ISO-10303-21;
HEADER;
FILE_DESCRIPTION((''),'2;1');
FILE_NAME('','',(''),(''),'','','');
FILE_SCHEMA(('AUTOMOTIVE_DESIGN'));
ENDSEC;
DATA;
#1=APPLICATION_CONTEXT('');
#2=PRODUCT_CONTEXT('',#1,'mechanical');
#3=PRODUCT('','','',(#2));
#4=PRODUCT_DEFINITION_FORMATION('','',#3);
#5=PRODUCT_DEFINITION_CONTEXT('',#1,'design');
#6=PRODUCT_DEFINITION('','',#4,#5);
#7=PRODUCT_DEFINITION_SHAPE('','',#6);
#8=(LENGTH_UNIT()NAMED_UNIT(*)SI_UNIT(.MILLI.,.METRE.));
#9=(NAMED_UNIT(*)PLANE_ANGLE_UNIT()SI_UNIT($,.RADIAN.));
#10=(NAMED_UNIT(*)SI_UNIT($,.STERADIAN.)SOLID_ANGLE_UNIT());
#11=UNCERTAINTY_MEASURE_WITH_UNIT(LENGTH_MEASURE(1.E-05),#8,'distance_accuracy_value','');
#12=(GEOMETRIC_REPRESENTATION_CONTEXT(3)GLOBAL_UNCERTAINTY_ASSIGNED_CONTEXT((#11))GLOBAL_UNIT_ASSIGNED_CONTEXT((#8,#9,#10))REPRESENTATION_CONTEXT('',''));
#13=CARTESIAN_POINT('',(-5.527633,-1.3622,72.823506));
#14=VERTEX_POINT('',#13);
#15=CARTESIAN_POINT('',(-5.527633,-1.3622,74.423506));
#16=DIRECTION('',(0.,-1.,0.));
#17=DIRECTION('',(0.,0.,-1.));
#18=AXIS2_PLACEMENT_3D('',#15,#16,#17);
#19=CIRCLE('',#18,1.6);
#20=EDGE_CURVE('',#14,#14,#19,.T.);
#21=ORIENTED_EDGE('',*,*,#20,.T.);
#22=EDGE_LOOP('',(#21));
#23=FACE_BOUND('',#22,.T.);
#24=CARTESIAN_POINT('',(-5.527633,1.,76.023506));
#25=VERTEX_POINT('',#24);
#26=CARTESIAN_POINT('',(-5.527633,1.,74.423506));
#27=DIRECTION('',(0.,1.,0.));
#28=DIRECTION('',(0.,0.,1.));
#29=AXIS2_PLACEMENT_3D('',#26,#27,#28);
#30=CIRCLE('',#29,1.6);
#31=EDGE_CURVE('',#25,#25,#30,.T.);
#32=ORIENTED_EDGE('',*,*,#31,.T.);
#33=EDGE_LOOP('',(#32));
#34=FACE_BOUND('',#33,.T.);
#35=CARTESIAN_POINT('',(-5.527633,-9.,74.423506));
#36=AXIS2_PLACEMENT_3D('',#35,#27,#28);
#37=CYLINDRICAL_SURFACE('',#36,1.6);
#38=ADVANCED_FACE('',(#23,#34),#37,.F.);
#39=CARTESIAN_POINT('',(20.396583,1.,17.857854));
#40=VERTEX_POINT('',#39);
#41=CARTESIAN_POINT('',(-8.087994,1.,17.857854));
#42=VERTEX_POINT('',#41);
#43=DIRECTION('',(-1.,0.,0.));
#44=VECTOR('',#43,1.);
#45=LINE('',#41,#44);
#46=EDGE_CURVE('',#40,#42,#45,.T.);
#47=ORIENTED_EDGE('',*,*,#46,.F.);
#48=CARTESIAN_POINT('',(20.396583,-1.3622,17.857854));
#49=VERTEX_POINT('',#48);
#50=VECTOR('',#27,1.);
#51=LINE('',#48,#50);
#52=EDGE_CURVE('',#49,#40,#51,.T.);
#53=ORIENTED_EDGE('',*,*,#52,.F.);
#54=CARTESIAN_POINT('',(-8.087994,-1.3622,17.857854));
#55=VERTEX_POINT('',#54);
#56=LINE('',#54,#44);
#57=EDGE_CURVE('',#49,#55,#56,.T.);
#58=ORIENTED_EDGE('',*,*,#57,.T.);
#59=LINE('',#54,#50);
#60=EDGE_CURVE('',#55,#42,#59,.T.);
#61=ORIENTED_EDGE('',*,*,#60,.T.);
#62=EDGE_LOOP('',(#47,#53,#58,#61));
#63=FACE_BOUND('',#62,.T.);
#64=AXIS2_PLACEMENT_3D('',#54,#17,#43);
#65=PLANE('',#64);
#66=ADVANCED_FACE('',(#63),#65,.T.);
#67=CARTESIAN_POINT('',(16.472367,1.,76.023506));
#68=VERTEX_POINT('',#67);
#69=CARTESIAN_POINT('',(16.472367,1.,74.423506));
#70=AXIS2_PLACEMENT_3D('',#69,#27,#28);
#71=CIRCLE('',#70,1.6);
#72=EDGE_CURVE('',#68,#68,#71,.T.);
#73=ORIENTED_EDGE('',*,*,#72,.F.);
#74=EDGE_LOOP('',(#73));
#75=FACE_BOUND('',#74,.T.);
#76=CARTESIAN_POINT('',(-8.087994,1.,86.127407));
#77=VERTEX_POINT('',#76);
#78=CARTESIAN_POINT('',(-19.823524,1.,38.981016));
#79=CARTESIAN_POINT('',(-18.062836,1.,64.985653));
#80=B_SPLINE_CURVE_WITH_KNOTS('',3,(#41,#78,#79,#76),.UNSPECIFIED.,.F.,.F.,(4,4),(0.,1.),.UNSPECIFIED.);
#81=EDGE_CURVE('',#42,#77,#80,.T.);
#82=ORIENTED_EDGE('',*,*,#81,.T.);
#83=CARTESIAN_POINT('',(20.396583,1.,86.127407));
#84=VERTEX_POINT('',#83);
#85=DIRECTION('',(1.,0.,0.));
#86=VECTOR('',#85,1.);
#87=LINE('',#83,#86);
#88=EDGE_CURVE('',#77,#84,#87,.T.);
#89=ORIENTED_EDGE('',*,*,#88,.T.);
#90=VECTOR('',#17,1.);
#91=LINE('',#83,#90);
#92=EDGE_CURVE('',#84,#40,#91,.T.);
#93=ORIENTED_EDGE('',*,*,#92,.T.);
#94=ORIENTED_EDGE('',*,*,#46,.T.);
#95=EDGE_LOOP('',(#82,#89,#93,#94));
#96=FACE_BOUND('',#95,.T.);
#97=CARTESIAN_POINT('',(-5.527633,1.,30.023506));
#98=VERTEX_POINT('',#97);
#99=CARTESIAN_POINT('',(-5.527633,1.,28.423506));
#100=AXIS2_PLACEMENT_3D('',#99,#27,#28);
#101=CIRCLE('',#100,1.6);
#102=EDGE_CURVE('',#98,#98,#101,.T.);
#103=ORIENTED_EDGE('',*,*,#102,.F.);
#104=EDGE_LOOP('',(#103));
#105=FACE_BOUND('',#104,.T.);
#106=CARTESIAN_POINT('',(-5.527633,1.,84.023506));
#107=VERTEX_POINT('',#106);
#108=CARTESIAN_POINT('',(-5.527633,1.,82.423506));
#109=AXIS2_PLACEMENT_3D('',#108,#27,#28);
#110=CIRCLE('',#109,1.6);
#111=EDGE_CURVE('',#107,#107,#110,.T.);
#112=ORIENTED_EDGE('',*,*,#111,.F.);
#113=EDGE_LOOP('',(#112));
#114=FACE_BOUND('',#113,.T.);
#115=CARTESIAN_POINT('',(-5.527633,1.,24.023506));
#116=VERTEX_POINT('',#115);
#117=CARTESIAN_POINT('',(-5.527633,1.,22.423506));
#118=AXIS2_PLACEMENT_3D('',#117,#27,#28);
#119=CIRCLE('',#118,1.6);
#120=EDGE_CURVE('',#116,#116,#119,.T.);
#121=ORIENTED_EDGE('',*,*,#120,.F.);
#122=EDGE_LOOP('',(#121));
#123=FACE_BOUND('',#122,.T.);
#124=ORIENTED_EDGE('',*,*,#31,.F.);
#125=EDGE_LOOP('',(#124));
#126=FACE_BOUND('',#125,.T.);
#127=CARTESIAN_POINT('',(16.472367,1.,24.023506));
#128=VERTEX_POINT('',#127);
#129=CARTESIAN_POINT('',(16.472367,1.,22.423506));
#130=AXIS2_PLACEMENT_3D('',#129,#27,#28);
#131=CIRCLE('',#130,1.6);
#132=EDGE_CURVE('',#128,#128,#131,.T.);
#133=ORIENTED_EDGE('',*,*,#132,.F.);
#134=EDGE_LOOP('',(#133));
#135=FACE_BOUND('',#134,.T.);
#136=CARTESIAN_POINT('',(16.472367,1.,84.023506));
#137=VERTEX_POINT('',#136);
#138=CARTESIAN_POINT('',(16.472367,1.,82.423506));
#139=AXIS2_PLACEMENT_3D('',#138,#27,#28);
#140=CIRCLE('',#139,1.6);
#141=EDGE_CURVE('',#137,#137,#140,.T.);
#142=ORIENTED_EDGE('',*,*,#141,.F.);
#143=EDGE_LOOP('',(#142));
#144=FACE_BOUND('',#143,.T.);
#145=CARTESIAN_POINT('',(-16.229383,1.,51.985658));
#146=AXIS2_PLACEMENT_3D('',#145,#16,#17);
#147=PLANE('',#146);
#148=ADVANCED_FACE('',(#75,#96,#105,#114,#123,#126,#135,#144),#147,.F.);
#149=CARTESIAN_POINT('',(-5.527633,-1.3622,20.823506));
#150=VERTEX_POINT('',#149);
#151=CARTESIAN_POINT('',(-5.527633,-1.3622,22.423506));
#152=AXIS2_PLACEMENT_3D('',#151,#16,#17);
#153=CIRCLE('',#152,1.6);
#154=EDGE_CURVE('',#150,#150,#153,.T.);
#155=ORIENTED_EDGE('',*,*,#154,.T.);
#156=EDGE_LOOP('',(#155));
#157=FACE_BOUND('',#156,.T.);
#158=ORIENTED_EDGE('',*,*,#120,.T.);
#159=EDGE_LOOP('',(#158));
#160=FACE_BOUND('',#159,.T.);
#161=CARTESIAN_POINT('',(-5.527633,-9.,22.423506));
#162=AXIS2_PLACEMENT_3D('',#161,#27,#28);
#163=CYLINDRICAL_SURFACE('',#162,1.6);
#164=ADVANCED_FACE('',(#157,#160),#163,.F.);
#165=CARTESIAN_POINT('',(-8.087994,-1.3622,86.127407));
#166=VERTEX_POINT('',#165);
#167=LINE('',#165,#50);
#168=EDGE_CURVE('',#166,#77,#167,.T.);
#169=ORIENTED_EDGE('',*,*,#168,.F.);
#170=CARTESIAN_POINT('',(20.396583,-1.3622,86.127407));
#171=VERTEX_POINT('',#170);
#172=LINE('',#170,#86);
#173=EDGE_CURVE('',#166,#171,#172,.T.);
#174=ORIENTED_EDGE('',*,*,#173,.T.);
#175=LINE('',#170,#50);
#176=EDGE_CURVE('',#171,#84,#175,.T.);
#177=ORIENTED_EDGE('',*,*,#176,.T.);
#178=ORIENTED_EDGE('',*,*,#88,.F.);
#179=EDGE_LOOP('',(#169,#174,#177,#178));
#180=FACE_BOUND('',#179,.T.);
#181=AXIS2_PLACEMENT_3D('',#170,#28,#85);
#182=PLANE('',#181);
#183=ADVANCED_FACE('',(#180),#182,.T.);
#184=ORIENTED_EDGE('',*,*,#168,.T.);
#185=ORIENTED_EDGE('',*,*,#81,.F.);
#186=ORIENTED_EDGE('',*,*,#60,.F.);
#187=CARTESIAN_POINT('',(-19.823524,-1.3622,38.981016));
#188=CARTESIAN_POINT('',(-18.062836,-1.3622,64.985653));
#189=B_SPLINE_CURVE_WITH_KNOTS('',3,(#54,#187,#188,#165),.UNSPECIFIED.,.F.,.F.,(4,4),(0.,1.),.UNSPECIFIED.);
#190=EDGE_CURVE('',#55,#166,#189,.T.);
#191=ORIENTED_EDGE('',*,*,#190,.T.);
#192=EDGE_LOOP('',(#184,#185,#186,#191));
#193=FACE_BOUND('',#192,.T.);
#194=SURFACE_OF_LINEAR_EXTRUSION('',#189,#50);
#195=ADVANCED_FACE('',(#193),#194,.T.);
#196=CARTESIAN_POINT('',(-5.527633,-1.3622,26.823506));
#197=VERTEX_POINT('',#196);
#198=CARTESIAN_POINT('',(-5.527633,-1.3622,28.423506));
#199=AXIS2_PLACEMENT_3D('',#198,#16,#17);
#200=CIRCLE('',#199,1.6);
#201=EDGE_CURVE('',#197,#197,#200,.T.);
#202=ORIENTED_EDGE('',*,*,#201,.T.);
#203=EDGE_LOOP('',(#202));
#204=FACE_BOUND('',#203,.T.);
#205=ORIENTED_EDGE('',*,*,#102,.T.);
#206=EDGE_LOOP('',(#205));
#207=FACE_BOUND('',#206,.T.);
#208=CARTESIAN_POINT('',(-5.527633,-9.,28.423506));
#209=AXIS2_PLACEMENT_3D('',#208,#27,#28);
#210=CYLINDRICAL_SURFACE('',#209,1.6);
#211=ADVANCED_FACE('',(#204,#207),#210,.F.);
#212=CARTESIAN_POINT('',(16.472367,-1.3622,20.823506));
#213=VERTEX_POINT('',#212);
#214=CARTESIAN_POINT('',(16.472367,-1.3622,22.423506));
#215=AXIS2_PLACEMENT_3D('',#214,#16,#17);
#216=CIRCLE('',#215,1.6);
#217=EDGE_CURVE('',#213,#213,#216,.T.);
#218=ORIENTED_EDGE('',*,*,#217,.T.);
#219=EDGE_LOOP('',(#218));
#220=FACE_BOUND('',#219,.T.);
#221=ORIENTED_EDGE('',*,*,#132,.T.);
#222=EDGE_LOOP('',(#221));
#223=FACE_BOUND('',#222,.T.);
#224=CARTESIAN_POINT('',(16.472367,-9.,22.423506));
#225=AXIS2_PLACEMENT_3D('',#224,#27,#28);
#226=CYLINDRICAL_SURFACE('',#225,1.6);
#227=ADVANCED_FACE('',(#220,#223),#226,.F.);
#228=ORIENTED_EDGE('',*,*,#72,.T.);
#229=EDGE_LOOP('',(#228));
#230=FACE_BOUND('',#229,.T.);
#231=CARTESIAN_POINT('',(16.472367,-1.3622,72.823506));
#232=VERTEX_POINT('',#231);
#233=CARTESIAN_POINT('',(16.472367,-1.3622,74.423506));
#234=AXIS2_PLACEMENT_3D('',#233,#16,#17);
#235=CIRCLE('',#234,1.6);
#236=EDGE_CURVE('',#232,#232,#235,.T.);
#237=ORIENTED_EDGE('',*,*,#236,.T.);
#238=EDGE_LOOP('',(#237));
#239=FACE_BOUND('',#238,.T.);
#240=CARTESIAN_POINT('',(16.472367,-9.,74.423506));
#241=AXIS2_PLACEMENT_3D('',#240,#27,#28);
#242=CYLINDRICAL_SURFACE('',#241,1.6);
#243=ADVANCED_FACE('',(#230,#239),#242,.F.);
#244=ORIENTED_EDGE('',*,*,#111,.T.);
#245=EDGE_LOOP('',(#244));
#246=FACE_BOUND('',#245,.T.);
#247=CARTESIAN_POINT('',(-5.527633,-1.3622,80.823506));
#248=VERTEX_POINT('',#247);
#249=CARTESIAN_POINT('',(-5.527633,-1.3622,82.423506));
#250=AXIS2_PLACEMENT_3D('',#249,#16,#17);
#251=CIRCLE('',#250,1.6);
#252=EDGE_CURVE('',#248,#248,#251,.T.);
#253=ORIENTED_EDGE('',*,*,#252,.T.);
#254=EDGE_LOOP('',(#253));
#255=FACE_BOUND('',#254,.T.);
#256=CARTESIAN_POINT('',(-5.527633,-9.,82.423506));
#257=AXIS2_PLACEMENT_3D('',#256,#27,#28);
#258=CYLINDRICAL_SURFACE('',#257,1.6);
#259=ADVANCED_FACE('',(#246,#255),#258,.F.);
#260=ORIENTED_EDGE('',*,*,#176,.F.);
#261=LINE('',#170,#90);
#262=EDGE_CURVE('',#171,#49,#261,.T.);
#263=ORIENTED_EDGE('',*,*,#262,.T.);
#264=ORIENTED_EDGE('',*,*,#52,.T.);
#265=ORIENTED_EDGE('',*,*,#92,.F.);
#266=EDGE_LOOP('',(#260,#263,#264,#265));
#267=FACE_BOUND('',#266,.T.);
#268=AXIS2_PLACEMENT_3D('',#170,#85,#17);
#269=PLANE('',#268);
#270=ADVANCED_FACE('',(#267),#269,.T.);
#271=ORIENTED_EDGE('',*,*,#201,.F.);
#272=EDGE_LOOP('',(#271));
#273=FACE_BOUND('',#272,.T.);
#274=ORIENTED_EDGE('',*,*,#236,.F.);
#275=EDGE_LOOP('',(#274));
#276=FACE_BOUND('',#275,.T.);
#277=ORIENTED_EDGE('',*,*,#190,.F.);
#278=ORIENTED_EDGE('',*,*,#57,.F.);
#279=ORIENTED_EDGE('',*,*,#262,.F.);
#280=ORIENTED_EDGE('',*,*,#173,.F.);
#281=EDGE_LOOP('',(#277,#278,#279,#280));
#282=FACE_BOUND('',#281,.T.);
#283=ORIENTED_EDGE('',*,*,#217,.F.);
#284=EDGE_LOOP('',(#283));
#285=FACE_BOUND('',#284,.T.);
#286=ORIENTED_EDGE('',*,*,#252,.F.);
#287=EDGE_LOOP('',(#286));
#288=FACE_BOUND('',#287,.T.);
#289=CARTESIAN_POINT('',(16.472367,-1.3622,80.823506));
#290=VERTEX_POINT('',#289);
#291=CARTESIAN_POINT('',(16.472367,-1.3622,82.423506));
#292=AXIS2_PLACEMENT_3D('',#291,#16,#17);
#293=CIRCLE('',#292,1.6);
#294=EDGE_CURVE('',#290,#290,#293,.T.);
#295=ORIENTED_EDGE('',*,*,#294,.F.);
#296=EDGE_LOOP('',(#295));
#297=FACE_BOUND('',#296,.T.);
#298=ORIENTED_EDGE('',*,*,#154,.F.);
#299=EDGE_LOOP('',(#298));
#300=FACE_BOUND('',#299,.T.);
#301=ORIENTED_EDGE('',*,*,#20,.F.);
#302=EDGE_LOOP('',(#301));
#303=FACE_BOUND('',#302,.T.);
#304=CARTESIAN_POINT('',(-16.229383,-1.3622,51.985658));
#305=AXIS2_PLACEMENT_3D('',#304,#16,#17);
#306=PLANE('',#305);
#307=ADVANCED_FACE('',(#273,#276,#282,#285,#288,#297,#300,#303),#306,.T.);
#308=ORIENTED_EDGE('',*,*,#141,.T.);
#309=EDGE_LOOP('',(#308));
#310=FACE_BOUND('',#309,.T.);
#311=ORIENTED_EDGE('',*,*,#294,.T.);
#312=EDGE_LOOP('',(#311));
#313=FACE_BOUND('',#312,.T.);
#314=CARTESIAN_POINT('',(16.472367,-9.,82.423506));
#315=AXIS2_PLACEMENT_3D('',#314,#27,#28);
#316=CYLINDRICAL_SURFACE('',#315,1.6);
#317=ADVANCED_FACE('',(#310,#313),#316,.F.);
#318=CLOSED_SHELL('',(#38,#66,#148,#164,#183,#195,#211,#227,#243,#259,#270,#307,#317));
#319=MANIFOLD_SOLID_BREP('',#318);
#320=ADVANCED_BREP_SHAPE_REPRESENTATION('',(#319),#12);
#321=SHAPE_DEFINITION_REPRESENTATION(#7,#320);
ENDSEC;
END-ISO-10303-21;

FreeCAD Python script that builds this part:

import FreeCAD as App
import Part
import Sketcher
Q = App.Units.Quantity

doc = App.newDocument("Part")
body = doc.addObject("PartDesign::Body", "Body")

sketch1 = body.newObject("Sketcher::SketchObject", "Sketch")
sketch1.AttachmentSupport = (doc.getObject("XZ_Plane"), [""])
sketch1.MapMode = "FlatFace"
sketch1.addGeometry([
    Part.LineSegment(App.Vector(20.396583, 17.857854, 0), App.Vector(-8.087994, 17.857854, 0)),
    Part.BSplineCurve([App.Vector(-8.087994, 17.857854, 0), App.Vector(-19.823524, 38.981016, 0), App.Vector(-18.062836, 64.985653, 0), App.Vector(-8.087994, 86.127407, 0)], [4, 4], [0, 1], False, 3, [1, 1, 1, 1], False),
    Part.LineSegment(App.Vector(-8.087994, 86.127407, 0), App.Vector(20.396583, 86.127407, 0)),
    Part.LineSegment(App.Vector(20.396583, 86.127407, 0), App.Vector(20.396583, 17.857854, 0)),
], False)
sketch1.addConstraint([
    Sketcher.Constraint("Block", 1),
    Sketcher.Constraint("Coincident", 0, 2, 1, 1),
    Sketcher.Constraint("Coincident", 1, 2, 2, 1),
    Sketcher.Constraint("Coincident", 2, 2, 3, 1),
    Sketcher.Constraint("Coincident", 3, 2, 0, 1),
    Sketcher.Constraint("Horizontal", 0),
    Sketcher.Constraint("Horizontal", 2),
    Sketcher.Constraint("Vertical", 3),
    Sketcher.Constraint("DistanceX", 0, 2, 0, 1, Q("28.484576 mm")),
])
pad1 = body.newObject("PartDesign::Pad", "Pad")
pad1.Profile = sketch1
pad1.Type = "TwoLengths"
pad1.Length = 1
pad1.Length2 = 1.3622
pad1.Reversed = True

sketch2 = body.newObject("Sketcher::SketchObject", "Sketch001")
sketch2.AttachmentSupport = (doc.getObject("XZ_Plane"), [""])
sketch2.MapMode = "FlatFace"
sketch2.AttachmentOffset = App.Placement(App.Vector(0, 0, -1), App.Rotation())
sketch2.addGeometry([
    Part.Circle(App.Vector(-5.527633, 22.423506, 0), App.Vector(0, 0, 1), 1.6),
    Part.Circle(App.Vector(16.472367, 22.423506, 0), App.Vector(0, 0, 1), 1.6),
    Part.Circle(App.Vector(-5.527633, 82.423506, 0), App.Vector(0, 0, 1), 1.6),
    Part.Circle(App.Vector(16.472367, 82.423506, 0), App.Vector(0, 0, 1), 1.6),
    Part.Circle(App.Vector(-5.527633, 74.423506, 0), App.Vector(0, 0, 1), 1.6),
    Part.Circle(App.Vector(16.472367, 74.423506, 0), App.Vector(0, 0, 1), 1.6),
    Part.Circle(App.Vector(-5.527633, 28.423506, 0), App.Vector(0, 0, 1), 1.6),
], False)
sketch2.addConstraint([
    Sketcher.Constraint("Equal", 0, 1),
    Sketcher.Constraint("Equal", 1, 2),
    Sketcher.Constraint("Equal", 2, 3),
    Sketcher.Constraint("Equal", 3, 4),
    Sketcher.Constraint("Equal", 4, 5),
    Sketcher.Constraint("Equal", 5, 6),
    Sketcher.Constraint("Horizontal", 0, 3, 1, 3),
    Sketcher.Constraint("Horizontal", 2, 3, 3, 3),
    Sketcher.Constraint("Horizontal", 4, 3, 5, 3),
    Sketcher.Constraint("Vertical", 0, 3, 2, 3),
    Sketcher.Constraint("Vertical", 1, 3, 3, 3),
    Sketcher.Constraint("Vertical", 2, 3, 4, 3),
    Sketcher.Constraint("Vertical", 3, 3, 5, 3),
    Sketcher.Constraint("Vertical", 4, 3, 6, 3),
    Sketcher.Constraint("Diameter", 0, Q("3.2 mm")),
    Sketcher.Constraint("DistanceX", 0, 3, 1, 3, Q("22 mm")),
    Sketcher.Constraint("DistanceY", 0, 3, 2, 3, Q("60 mm")),
    Sketcher.Constraint("DistanceY", 4, 3, 2, 3, Q("8 mm")),
    Sketcher.Constraint("DistanceY", 0, 3, 6, 3, Q("6 mm")),
    Sketcher.Constraint("DistanceX", 0, 3, -1, 1, Q("5.527633 mm")),
    Sketcher.Constraint("DistanceY", -1, 1, 0, 3, Q("22.423506 mm")),
])
pocket1 = body.newObject("PartDesign::Pocket", "Pocket")
pocket1.Profile = sketch2
pocket1.Length = 10
pocket1.Reversed = True

doc.recompute()
